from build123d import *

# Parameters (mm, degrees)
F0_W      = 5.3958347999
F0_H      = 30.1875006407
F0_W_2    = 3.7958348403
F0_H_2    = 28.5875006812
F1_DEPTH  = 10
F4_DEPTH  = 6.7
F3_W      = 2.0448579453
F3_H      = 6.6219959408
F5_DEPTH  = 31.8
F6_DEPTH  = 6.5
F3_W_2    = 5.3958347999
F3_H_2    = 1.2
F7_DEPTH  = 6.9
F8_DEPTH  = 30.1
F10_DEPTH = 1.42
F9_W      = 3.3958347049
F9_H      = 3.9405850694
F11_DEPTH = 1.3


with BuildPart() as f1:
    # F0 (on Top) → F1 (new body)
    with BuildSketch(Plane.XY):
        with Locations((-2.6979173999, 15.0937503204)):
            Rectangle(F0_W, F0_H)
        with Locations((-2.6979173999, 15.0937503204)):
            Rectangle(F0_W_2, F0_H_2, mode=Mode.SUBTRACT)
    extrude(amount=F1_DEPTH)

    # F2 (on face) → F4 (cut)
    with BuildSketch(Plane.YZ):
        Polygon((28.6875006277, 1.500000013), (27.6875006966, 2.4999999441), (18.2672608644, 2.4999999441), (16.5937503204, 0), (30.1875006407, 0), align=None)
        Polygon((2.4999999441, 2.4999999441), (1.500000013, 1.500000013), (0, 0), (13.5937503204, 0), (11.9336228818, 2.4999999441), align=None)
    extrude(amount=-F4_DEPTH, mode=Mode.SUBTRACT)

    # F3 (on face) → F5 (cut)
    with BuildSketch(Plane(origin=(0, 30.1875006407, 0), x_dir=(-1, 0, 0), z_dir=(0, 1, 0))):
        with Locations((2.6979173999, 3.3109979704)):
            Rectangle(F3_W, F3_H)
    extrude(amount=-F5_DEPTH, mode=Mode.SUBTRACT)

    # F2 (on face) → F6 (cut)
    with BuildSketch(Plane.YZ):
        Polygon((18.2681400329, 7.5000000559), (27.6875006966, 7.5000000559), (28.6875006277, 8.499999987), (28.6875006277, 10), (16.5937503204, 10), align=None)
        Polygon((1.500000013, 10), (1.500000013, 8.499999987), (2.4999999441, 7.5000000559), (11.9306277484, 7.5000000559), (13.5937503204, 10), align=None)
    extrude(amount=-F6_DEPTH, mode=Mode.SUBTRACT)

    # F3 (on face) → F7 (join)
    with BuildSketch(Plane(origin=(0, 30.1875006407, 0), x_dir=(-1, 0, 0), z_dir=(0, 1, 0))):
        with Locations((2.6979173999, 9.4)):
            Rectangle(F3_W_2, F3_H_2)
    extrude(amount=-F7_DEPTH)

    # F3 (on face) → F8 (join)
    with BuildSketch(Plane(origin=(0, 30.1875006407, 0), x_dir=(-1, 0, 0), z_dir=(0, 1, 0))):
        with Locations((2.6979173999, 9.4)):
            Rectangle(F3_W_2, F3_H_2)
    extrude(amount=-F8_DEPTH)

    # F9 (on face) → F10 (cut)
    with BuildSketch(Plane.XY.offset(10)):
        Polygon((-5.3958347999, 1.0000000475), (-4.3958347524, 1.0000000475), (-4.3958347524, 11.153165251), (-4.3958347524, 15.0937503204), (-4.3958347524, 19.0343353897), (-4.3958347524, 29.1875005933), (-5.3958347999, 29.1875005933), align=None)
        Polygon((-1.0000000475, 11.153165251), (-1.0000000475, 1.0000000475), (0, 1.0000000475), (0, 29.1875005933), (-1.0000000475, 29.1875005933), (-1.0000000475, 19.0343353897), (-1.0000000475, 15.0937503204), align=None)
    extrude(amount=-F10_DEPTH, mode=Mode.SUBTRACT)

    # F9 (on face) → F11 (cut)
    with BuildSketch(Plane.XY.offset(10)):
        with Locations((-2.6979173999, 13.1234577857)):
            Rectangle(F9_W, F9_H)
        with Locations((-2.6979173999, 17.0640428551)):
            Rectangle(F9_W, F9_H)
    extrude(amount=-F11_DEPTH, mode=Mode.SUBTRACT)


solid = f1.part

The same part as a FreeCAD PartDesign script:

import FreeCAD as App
import Part
import Sketcher


def add_polygon(sketch, points):
    """Adds a closed chain of lines whose ends are joined by coincident constraints."""
    first, n = sketch.GeometryCount, len(points)
    for a, b in zip(points, points[1:] + points[:1]):
        sketch.addGeometry(Part.LineSegment(App.Vector(*a, 0), App.Vector(*b, 0)), False)
    for i in range(n):
        sketch.addConstraint(Sketcher.Constraint("Coincident", first + i, 2, first + (i + 1) % n, 1))

doc = App.newDocument("Part")
body = doc.addObject("PartDesign::Body", "Body")

sketch1 = body.newObject("Sketcher::SketchObject", "Sketch")
sketch1.AttachmentSupport = (doc.getObject("XY_Plane"), [""])
sketch1.MapMode = "FlatFace"
add_polygon(sketch1, [(-5.4, 30.2), (-5.4, 0), (0, 0), (0, 30.2)])
add_polygon(sketch1, [(-0.8, 0.8), (-4.6, 0.8), (-4.6, 29.4), (-0.8, 29.4)])
sketch1.addConstraint(Sketcher.Constraint("Vertical", 0))
sketch1.addConstraint(Sketcher.Constraint("Horizontal", 1))
sketch1.addConstraint(Sketcher.Constraint("Vertical", 2))
sketch1.addConstraint(Sketcher.Constraint("Horizontal", 3))
sketch1.addConstraint(Sketcher.Constraint("Horizontal", 4))
sketch1.addConstraint(Sketcher.Constraint("Vertical", 5))
sketch1.addConstraint(Sketcher.Constraint("Horizontal", 6))
sketch1.addConstraint(Sketcher.Constraint("Vertical", 7))
sketch1.addConstraint(Sketcher.Constraint("Coincident", 1, 2, -1, 1))
sketch1.addConstraint(Sketcher.Constraint("DistanceY", -1, 1, 4, 2, 0.8))
sketch1.addConstraint(Sketcher.Constraint("DistanceX", 6, 2, -1, 1, 0.8))
sketch1.addConstraint(Sketcher.Constraint("DistanceX", 0, 2, 4, 2, 0.8))
sketch1.addConstraint(Sketcher.Constraint("DistanceY", 5, 2, 3, 2, 0.8))
sketch1.addConstraint(Sketcher.Constraint("DistanceY", 0, 2, 0, 1, 30.187501))
sketch1.addConstraint(Sketcher.Constraint("DistanceX", 1, 1, 1, 2, 5.395835))
pad1 = body.newObject("PartDesign::Pad", "Pad")
pad1.Profile = sketch1
pad1.Length = 10

sketch2 = body.newObject("Sketcher::SketchObject", "Sketch001")
sketch2.AttachmentSupport = (doc.getObject("YZ_Plane"), [""])
sketch2.MapMode = "FlatFace"
add_polygon(sketch2, [(27.7, 2.5), (18.3, 2.5), (16.6, 0), (30.2, 0)])
add_polygon(sketch2, [(2.5, 2.5), (0, 0), (13.6, 0), (11.9, 2.5)])
sketch2.addConstraint(Sketcher.Constraint("Horizontal", 0))
sketch2.addConstraint(Sketcher.Constraint("Horizontal", 2))
sketch2.addConstraint(Sketcher.Constraint("Horizontal", 5))
sketch2.addConstraint(Sketcher.Constraint("Horizontal", 7))
sketch2.addConstraint(Sketcher.Constraint("Coincident", 4, 2, -1, 1))
sketch2.addConstraint(Sketcher.Constraint("PointOnObject", 1, 2, -1))
sketch2.addConstraint(Sketcher.Constraint("Perpendicular", 3, 4))
sketch2.addConstraint(Sketcher.Constraint("Horizontal", 3, 2, 6, 2))
sketch2.addConstraint(Sketcher.Constraint("Equal", 2, 5))
sketch2.addConstraint(Sketcher.Constraint("Equal", 3, 4))
sketch2.addConstraint(Sketcher.Constraint("DistanceX", 5, 2, 1, 2, 3.0))
sketch2.addConstraint(Sketcher.Constraint("DistanceY", -1, 1, 0, 2, 2.5))
sketch2.addConstraint(Sketcher.Constraint("DistanceX", 0, 2, 0, 1, 9.42024))
sketch2.addConstraint(Sketcher.Constraint("DistanceX", 2, 1, 2, 2, 13.59375))
sketch2.addConstraint(Sketcher.Constraint("DistanceX", 7, 2, 7, 1, 9.433623))
pocket1 = body.newObject("PartDesign::Pocket", "Pocket")
pocket1.Profile = sketch2
pocket1.Length = 6.7

sketch3 = body.newObject("Sketcher::SketchObject", "Sketch002")
sketch3.AttachmentSupport = (doc.getObject("XZ_Plane"), [""])
sketch3.MapMode = "FlatFace"
sketch3.AttachmentOffset = App.Placement(App.Vector(0, 0, -30.187501), App.Rotation())
add_polygon(sketch3, [(-1.7, 6.6), (-1.7, 0), (-3.7, 0), (-3.7, 6.6)])
sketch3.addConstraint(Sketcher.Constraint("Vertical", 0))
sketch3.addConstraint(Sketcher.Constraint("Horizontal", 1))
sketch3.addConstraint(Sketcher.Constraint("Vertical", 2))
sketch3.addConstraint(Sketcher.Constraint("Horizontal", 3))
sketch3.addConstraint(Sketcher.Constraint("PointOnObject", 0, 2, -1))
sketch3.addConstraint(Sketcher.Constraint("DistanceX", 1, 2, 1, 1, 2.044858))
sketch3.addConstraint(Sketcher.Constraint("DistanceY", 0, 2, 0, 1, 6.621996))
sketch3.addConstraint(Sketcher.Constraint("DistanceX", 0, 2, -1, 1, 1.675488))
pocket2 = body.newObject("PartDesign::Pocket", "Pocket001")
pocket2.Profile = sketch3
pocket2.Length = 31.8
pocket2.Reversed = True

sketch4 = body.newObject("Sketcher::SketchObject", "Sketch003")
sketch4.AttachmentSupport = (doc.getObject("YZ_Plane"), [""])
sketch4.MapMode = "FlatFace"
add_polygon(sketch4, [(18.3, 7.5), (27.7, 7.5), (28.7, 8.5), (28.7, 10), (16.6, 10)])
add_polygon(sketch4, [(1.5, 10), (1.5, 8.5), (2.5, 7.5), (11.9, 7.5), (13.6, 10)])
sketch4.addConstraint(Sketcher.Constraint("Horizontal", 0))
sketch4.addConstraint(Sketcher.Constraint("Vertical", 2))
sketch4.addConstraint(Sketcher.Constraint("Horizontal", 3))
sketch4.addConstraint(Sketcher.Constraint("Vertical", 5))
sketch4.addConstraint(Sketcher.Constraint("Horizontal", 7))
sketch4.addConstraint(Sketcher.Constraint("Horizontal", 9))
sketch4.addConstraint(Sketcher.Constraint("Perpendicular", 1, 6))
sketch4.addConstraint(Sketcher.Constraint("Horizontal", 1, 2, 5, 2))
sketch4.addConstraint(Sketcher.Constraint("Horizontal", 4, 2, 6, 2))
sketch4.addConstraint(Sketcher.Constraint("Horizontal", 3, 2, 8, 2))
sketch4.addConstraint(Sketcher.Constraint("Equal", 3, 9))
sketch4.addConstraint(Sketcher.Constraint("Equal", 1, 6))
sketch4.addConstraint(Sketcher.Constraint("DistanceY", 2, 1, 2, 2, 1.5))
sketch4.addConstraint(Sketcher.Constraint("DistanceY", -1, 1, 2, 2, 10.0))
sketch4.addConstraint(Sketcher.Constraint("DistanceX", 0, 2, 1, 2, 1.0))
sketch4.addConstraint(Sketcher.Constraint("DistanceX", 8, 2, 3, 2, 3.0))
sketch4.addConstraint(Sketcher.Constraint("DistanceX", -1, 1, 5, 2, 1.5))
sketch4.addConstraint(Sketcher.Constraint("DistanceX", 0, 1, 0, 2, 9.419361))
sketch4.addConstraint(Sketcher.Constraint("DistanceX", 3, 2, 3, 1, 12.09375))
sketch4.addConstraint(Sketcher.Constraint("Distance", 8, 3.002662))
pocket3 = body.newObject("PartDesign::Pocket", "Pocket002")
pocket3.Profile = sketch4
pocket3.Length = 6.5

sketch5 = body.newObject("Sketcher::SketchObject", "Sketch004")
sketch5.AttachmentSupport = (doc.getObject("XZ_Plane"), [""])
sketch5.MapMode = "FlatFace"
sketch5.AttachmentOffset = App.Placement(App.Vector(0, 0, -30.187501), App.Rotation())
add_polygon(sketch5, [(0, 10), (0, 8.8), (-5.4, 8.8), (-5.4, 10)])
sketch5.addConstraint(Sketcher.Constraint("Vertical", 0))
sketch5.addConstraint(Sketcher.Constraint("Horizontal", 1))
sketch5.addConstraint(Sketcher.Constraint("Vertical", 2))
sketch5.addConstraint(Sketcher.Constraint("Horizontal", 3))
sketch5.addConstraint(Sketcher.Constraint("PointOnObject", 0, 2, -2))
sketch5.addConstraint(Sketcher.Constraint("DistanceY", 0, 2, 0, 1, 1.2))
sketch5.addConstraint(Sketcher.Constraint("DistanceY", -1, 1, 2, 2, 10.0))
sketch5.addConstraint(Sketcher.Constraint("DistanceX", 1, 2, 1, 1, 5.395835))
pad2 = body.newObject("PartDesign::Pad", "Pad001")
pad2.Profile = sketch5
pad2.Length = 6.9

sketch6 = body.newObject("Sketcher::SketchObject", "Sketch005")
sketch6.AttachmentSupport = (doc.getObject("XZ_Plane"), [""])
sketch6.MapMode = "FlatFace"
sketch6.AttachmentOffset = App.Placement(App.Vector(0, 0, -30.187501), App.Rotation())
add_polygon(sketch6, [(0, 10), (0, 8.8), (-5.4, 8.8), (-5.4, 10)])
sketch6.addConstraint(Sketcher.Constraint("Vertical", 0))
sketch6.addConstraint(Sketcher.Constraint("Horizontal", 1))
sketch6.addConstraint(Sketcher.Constraint("Vertical", 2))
sketch6.addConstraint(Sketcher.Constraint("Horizontal", 3))
sketch6.addConstraint(Sketcher.Constraint("PointOnObject", 0, 2, -2))
sketch6.addConstraint(Sketcher.Constraint("DistanceY", 0, 2, 0, 1, 1.2))
sketch6.addConstraint(Sketcher.Constraint("DistanceY", -1, 1, 2, 2, 10.0))
sketch6.addConstraint(Sketcher.Constraint("DistanceX", 1, 2, 1, 1, 5.395835))
pad3 = body.newObject("PartDesign::Pad", "Pad002")
pad3.Profile = sketch6
pad3.Length = 30.1

sketch7 = body.newObject("Sketcher::SketchObject", "Sketch006")
sketch7.AttachmentSupport = (doc.getObject("XY_Plane"), [""])
sketch7.MapMode = "FlatFace"
sketch7.AttachmentOffset = App.Placement(App.Vector(0, 0, 10), App.Rotation())
add_polygon(sketch7, [(-5.4, 1), (-4.4, 1), (-4.4, 29.2), (-5.4, 29.2)])
add_polygon(sketch7, [(-1, 1), (0, 1), (0, 29.2), (-1, 29.2)])
sketch7.addConstraint(Sketcher.Constraint("Horizontal", 0))
sketch7.addConstraint(Sketcher.Constraint("Vertical", 1))
sketch7.addConstraint(Sketcher.Constraint("Horizontal", 2))
sketch7.addConstraint(Sketcher.Constraint("Vertical", 3))
sketch7.addConstraint(Sketcher.Constraint("Horizontal", 4))
sketch7.addConstraint(Sketcher.Constraint("Vertical", 5))
sketch7.addConstraint(Sketcher.Constraint("Horizontal", 6))
sketch7.addConstraint(Sketcher.Constraint("Vertical", 7))
sketch7.addConstraint(Sketcher.Constraint("PointOnObject", 4, 2, -2))
sketch7.addConstraint(Sketcher.Constraint("Horizontal", 3, 2, 4, 2))
sketch7.addConstraint(Sketcher.Constraint("Horizontal", 2, 2, 5, 2))
sketch7.addConstraint(Sketcher.Constraint("Equal", 2, 4))
sketch7.addConstraint(Sketcher.Constraint("DistanceX", 0, 1, 0, 2, 1.0))
sketch7.addConstraint(Sketcher.Constraint("DistanceY", -1, 1, 0, 2, 1.0))
sketch7.addConstraint(Sketcher.Constraint("DistanceY", 1, 1, 1, 2, 28.187501))
sketch7.addConstraint(Sketcher.Constraint("DistanceX", 0, 2, -1, 1, 4.395835))
pocket4 = body.newObject("PartDesign::Pocket", "Pocket003")
pocket4.Profile = sketch7
pocket4.Length = 1.42

sketch8 = body.newObject("Sketcher::SketchObject", "Sketch007")
sketch8.AttachmentSupport = (doc.getObject("XY_Plane"), [""])
sketch8.MapMode = "FlatFace"
sketch8.AttachmentOffset = App.Placement(App.Vector(0, 0, 10), App.Rotation())
add_polygon(sketch8, [(-4.4, 11.2), (-1, 11.2), (-1, 19), (-4.4, 19)])
sketch8.addConstraint(Sketcher.Constraint("Horizontal", 0))
sketch8.addConstraint(Sketcher.Constraint("Vertical", 1))
sketch8.addConstraint(Sketcher.Constraint("Horizontal", 2))
sketch8.addConstraint(Sketcher.Constraint("Vertical", 3))
sketch8.addConstraint(Sketcher.Constraint("DistanceX", 0, 2, -1, 1, 1.0))
sketch8.addConstraint(Sketcher.Constraint("DistanceY", 1, 1, 1, 2, 7.88117))
sketch8.addConstraint(Sketcher.Constraint("DistanceX", 0, 1, 0, 2, 3.395835))
sketch8.addConstraint(Sketcher.Constraint("DistanceY", -1, 1, 0, 2, 11.153165))
pocket5 = body.newObject("PartDesign::Pocket", "Pocket004")
pocket5.Profile = sketch8
pocket5.Length = 1.3

doc.recompute()
